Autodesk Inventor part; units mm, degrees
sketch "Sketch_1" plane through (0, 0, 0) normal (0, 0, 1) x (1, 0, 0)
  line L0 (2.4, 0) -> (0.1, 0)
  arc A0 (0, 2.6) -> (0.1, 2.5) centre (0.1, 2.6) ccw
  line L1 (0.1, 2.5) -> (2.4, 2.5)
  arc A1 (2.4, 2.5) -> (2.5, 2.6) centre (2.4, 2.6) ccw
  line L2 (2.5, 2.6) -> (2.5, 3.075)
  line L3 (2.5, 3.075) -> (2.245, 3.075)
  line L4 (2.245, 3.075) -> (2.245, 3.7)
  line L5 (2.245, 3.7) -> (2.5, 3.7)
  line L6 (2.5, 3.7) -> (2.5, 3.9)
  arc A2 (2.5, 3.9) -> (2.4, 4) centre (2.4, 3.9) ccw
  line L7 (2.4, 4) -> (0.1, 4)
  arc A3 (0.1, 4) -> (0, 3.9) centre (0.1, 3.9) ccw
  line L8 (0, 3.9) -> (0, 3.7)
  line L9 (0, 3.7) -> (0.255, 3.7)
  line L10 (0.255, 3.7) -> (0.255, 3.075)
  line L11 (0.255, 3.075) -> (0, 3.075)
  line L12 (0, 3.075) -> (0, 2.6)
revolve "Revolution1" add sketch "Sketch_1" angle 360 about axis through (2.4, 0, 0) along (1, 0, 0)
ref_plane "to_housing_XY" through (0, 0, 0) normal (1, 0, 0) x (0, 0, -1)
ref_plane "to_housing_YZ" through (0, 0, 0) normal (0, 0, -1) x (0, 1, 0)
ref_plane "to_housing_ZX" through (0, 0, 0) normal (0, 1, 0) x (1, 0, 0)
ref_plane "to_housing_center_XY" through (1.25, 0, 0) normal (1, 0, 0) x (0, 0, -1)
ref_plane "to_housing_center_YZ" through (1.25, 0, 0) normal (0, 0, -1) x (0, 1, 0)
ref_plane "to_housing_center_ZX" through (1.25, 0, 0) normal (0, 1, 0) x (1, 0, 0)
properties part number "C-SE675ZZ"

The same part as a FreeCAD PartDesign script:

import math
import FreeCAD as App
import Part
import Sketcher
Q = App.Units.Quantity

doc = App.newDocument("Part")
body = doc.addObject("PartDesign::Body", "Body")

# Sketch on XY plane
sketch1 = doc.addObject("Sketcher::SketchObject", "Sketch")
body.addObject(sketch1)
sketch1.AttachmentSupport = (doc.XY_Plane, [""])
sketch1.MapMode = "FlatFace"
sketch1.addGeometry(Part.LineSegment(App.Vector(0, 3.08, 0), App.Vector(0, 2.6, 0)), False)
sketch1.addGeometry(Part.ArcOfCircle(Part.Circle(App.Vector(0.1, 2.6, 0), App.Vector(0, 0, 1), 0.1), math.radians(180), math.radians(270)), False)
sketch1.addGeometry(Part.LineSegment(App.Vector(0.1, 2.5, 0), App.Vector(2.4, 2.5, 0)), False)
sketch1.addGeometry(Part.ArcOfCircle(Part.Circle(App.Vector(2.4, 2.6, 0), App.Vector(0, 0, 1), 0.1), math.radians(-90), math.radians(0)), False)
sketch1.addGeometry(Part.LineSegment(App.Vector(2.5, 2.6, 0), App.Vector(2.5, 3.08, 0)), False)
sketch1.addGeometry(Part.LineSegment(App.Vector(2.5, 3.08, 0), App.Vector(2.25, 3.08, 0)), False)
sketch1.addGeometry(Part.LineSegment(App.Vector(2.25, 3.08, 0), App.Vector(2.25, 3.7, 0)), False)
sketch1.addGeometry(Part.LineSegment(App.Vector(2.25, 3.7, 0), App.Vector(2.5, 3.7, 0)), False)
sketch1.addGeometry(Part.LineSegment(App.Vector(2.5, 3.7, 0), App.Vector(2.5, 3.9, 0)), False)
sketch1.addGeometry(Part.ArcOfCircle(Part.Circle(App.Vector(2.4, 3.9, 0), App.Vector(0, 0, 1), 0.1), math.radians(0), math.radians(90)), False)
sketch1.addGeometry(Part.LineSegment(App.Vector(2.4, 4, 0), App.Vector(0.1, 4, 0)), False)
sketch1.addGeometry(Part.ArcOfCircle(Part.Circle(App.Vector(0.1, 3.9, 0), App.Vector(0, 0, 1), 0.1), math.radians(90), math.radians(180)), False)
sketch1.addGeometry(Part.LineSegment(App.Vector(0, 3.9, 0), App.Vector(0, 3.7, 0)), False)
sketch1.addGeometry(Part.LineSegment(App.Vector(0, 3.7, 0), App.Vector(0.26, 3.7, 0)), False)
sketch1.addGeometry(Part.LineSegment(App.Vector(0.26, 3.7, 0), App.Vector(0.26, 3.08, 0)), False)
sketch1.addGeometry(Part.LineSegment(App.Vector(0.26, 3.08, 0), App.Vector(0, 3.08, 0)), False)
sketch1.addConstraint(Sketcher.Constraint("Tangent", 0, 2, 1, 1))
sketch1.addConstraint(Sketcher.Constraint("Tangent", 1, 2, 2, 1))
sketch1.addConstraint(Sketcher.Constraint("Tangent", 2, 2, 3, 1))
sketch1.addConstraint(Sketcher.Constraint("Tangent", 3, 2, 4, 1))
sketch1.addConstraint(Sketcher.Constraint("Coincident", 4, 2, 5, 1))
sketch1.addConstraint(Sketcher.Constraint("Coincident", 5, 2, 6, 1))
sketch1.addConstraint(Sketcher.Constraint("Coincident", 6, 2, 7, 1))
sketch1.addConstraint(Sketcher.Constraint("Coincident", 7, 2, 8, 1))
sketch1.addConstraint(Sketcher.Constraint("Tangent", 8, 2, 9, 1))
sketch1.addConstraint(Sketcher.Constraint("Tangent", 9, 2, 10, 1))
sketch1.addConstraint(Sketcher.Constraint("Tangent", 10, 2, 11, 1))
sketch1.addConstraint(Sketcher.Constraint("Tangent", 11, 2, 12, 1))
sketch1.addConstraint(Sketcher.Constraint("Coincident", 12, 2, 13, 1))
sketch1.addConstraint(Sketcher.Constraint("Coincident", 13, 2, 14, 1))
sketch1.addConstraint(Sketcher.Constraint("Coincident", 14, 2, 15, 1))
sketch1.addConstraint(Sketcher.Constraint("Coincident", 15, 2, 0, 1))
sketch1.addConstraint(Sketcher.Constraint("Vertical", 0))
sketch1.addConstraint(Sketcher.Constraint("Horizontal", 2))
sketch1.addConstraint(Sketcher.Constraint("Vertical", 4))
sketch1.addConstraint(Sketcher.Constraint("Horizontal", 5))
sketch1.addConstraint(Sketcher.Constraint("Vertical", 6))
sketch1.addConstraint(Sketcher.Constraint("Horizontal", 7))
sketch1.addConstraint(Sketcher.Constraint("Vertical", 8))
sketch1.addConstraint(Sketcher.Constraint("Horizontal", 10))
sketch1.addConstraint(Sketcher.Constraint("Vertical", 12))
sketch1.addConstraint(Sketcher.Constraint("Horizontal", 13))
sketch1.addConstraint(Sketcher.Constraint("Vertical", 14))
sketch1.addConstraint(Sketcher.Constraint("Horizontal", 15))
sketch1.addConstraint(Sketcher.Constraint("Equal", 1, 3))
sketch1.addConstraint(Sketcher.Constraint("Equal", 3, 9))
sketch1.addConstraint(Sketcher.Constraint("Equal", 9, 11))
sketch1.addConstraint(Sketcher.Constraint("PointOnObject", 0, 2, -2))
sketch1.addConstraint(Sketcher.Constraint("PointOnObject", 11, 2, -2))
sketch1.addConstraint(Sketcher.Constraint("Horizontal", 7, 2, 12, 2))
sketch1.addConstraint(Sketcher.Constraint("Horizontal", 5, 2, 14, 2))
sketch1.addConstraint(Sketcher.Constraint("Vertical", 3, 3, 9, 3))
sketch1.addConstraint(Sketcher.Constraint("Equal", 7, 13))
sketch1.addConstraint(Sketcher.Constraint("Radius", 1, Q("0.1 mm")))
sketch1.addConstraint(Sketcher.Constraint("DistanceX", 2, 1, 2, 2, Q("2.3 mm")))
sketch1.addConstraint(Sketcher.Constraint("DistanceY", 8, 1, 8, 2, Q("0.2 mm")))
sketch1.addConstraint(Sketcher.Constraint("DistanceY", -1, 1, 9, 2, Q("4 mm")))
sketch1.addConstraint(Sketcher.Constraint("DistanceY", -1, 1, 1, 3, Q("2.6 mm")))
sketch1.addConstraint(Sketcher.Constraint("DistanceX", 5, 2, 5, 1, Q("0.255 mm")))
sketch1.addConstraint(Sketcher.Constraint("DistanceY", 0, 2, 0, 1, Q("0.475 mm")))
revolution = doc.addObject("PartDesign::Revolution", "Revolution")
body.addObject(revolution)
revolution.Profile = sketch1
revolution.ReferenceAxis = (sketch1, ["H_Axis"])
revolution.Angle = 360

doc.recompute()
